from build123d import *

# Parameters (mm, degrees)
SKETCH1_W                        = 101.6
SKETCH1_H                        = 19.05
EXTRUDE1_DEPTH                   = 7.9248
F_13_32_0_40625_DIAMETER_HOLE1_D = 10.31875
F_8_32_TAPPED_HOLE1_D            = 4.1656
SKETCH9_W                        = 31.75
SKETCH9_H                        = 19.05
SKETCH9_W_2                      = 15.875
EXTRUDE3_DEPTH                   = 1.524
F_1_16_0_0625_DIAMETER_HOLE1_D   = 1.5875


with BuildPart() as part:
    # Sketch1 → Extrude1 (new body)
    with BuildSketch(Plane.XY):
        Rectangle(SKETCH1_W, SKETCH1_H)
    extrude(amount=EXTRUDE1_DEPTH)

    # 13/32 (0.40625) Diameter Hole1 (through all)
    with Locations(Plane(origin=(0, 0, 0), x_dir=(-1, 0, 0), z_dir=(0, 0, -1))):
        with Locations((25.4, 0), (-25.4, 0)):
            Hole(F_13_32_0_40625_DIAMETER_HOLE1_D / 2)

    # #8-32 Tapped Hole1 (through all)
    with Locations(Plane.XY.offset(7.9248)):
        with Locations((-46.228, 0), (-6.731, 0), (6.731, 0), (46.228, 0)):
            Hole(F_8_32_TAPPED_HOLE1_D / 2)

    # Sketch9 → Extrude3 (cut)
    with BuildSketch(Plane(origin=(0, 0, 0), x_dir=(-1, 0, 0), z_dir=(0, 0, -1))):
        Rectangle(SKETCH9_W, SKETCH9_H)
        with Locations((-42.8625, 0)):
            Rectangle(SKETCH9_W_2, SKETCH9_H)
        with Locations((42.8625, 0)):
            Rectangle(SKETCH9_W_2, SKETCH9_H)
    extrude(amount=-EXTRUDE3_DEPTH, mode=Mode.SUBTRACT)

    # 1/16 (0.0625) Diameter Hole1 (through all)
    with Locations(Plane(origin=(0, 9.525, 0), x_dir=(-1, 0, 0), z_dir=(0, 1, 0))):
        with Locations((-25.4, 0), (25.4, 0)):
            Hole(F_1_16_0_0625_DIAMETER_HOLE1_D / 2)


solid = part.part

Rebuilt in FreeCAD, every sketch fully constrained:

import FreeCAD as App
import Part
import Sketcher

V = App.Vector
Q = App.Units.Quantity


def add_polygon(sketch, points):
    """Adds a closed chain of lines whose ends are joined by coincident constraints."""
    first, n = sketch.GeometryCount, len(points)
    for a, b in zip(points, points[1:] + points[:1]):
        sketch.addGeometry(Part.LineSegment(App.Vector(*a, 0), App.Vector(*b, 0)), False)
    for i in range(n):
        sketch.addConstraint(Sketcher.Constraint("Coincident", first + i, 2, first + (i + 1) % n, 1))

doc = App.newDocument("Part")
body = doc.addObject("PartDesign::Body", "Body")

# Sketch on XY plane
sketch1 = body.newObject("Sketcher::SketchObject", "Sketch")
sketch1.AttachmentSupport = (doc.getObject("XY_Plane"), [""])
sketch1.MapMode = "FlatFace"
add_polygon(sketch1, [(-51, 10), (-51, -10), (51, -10), (51, 10)])  # lines 0-3
sketch1.addConstraint([
    Sketcher.Constraint("Vertical", 0),
    Sketcher.Constraint("Horizontal", 1),
    Sketcher.Constraint("Vertical", 2),
    Sketcher.Constraint("Horizontal", 3),
    Sketcher.Constraint("Symmetric", 0, 2, 2, 2, -1, 1),
    Sketcher.Constraint("DistanceX", 1, 1, 1, 2, Q("4 in")),
    Sketcher.Constraint("DistanceY", 0, 2, 0, 1, Q("0.75 in")),
])
pad1 = body.newObject("PartDesign::Pad", "Pad")
pad1.Profile = sketch1
pad1.Length = Q("0.312 in")

# Sketch on XY plane
sketch2 = body.newObject("Sketcher::SketchObject", "Sketch001")
sketch2.AttachmentSupport = (doc.getObject("XY_Plane"), [""])
sketch2.MapMode = "FlatFace"
sketch2.addGeometry([
    Part.Circle(V(-25, 0, 0), V(0, 0, 1), 5),
    Part.Circle(V(25, 0, 0), V(0, 0, 1), 5),
], False)
sketch2.addConstraint([
    Sketcher.Constraint("Equal", 0, 1),
    Sketcher.Constraint("Symmetric", 0, 3, 1, 3, -1, 1),
    Sketcher.Constraint("PointOnObject", 0, 3, -1),
    Sketcher.Constraint("Diameter", 0, Q("0.40625 in")),
    Sketcher.Constraint("DistanceX", 0, 3, -1, 1, Q("1 in")),
])
doc.recompute()
hole = body.newObject("PartDesign::Hole", "Hole")
hole.Profile = sketch2
hole.ThreadType = "None"
hole.Diameter = Q("0.40625 in")
hole.DepthType = "ThroughAll"
hole.Reversed = True

# Sketch on XY plane
sketch3 = body.newObject("Sketcher::SketchObject", "Sketch002")
sketch3.AttachmentSupport = (doc.getObject("XY_Plane"), [""])
sketch3.MapMode = "FlatFace"
sketch3.AttachmentOffset = App.Placement(V(0, 0, 0.312 * 25.4), App.Rotation())
sketch3.addGeometry([
    Part.Circle(V(-46.2, 0, 0), V(0, 0, 1), 2.1),
    Part.Circle(V(-6.7, 0, 0), V(0, 0, 1), 2.1),
    Part.Circle(V(6.7, 0, 0), V(0, 0, 1), 2.1),
    Part.Circle(V(46.2, 0, 0), V(0, 0, 1), 2.1),
], False)
sketch3.addConstraint([
    Sketcher.Constraint("Equal", 0, 1),
    Sketcher.Constraint("Equal", 1, 2),
    Sketcher.Constraint("Equal", 2, 3),
    Sketcher.Constraint("Symmetric", 1, 3, 2, 3, -1, 1),
    Sketcher.Constraint("Symmetric", 0, 3, 3, 3, -1, 1),
    Sketcher.Constraint("PointOnObject", 0, 3, -1),
    Sketcher.Constraint("PointOnObject", 1, 3, -1),
    Sketcher.Constraint("Diameter", 0, Q("0.164 in")),
    Sketcher.Constraint("DistanceX", 0, 3, -1, 1, Q("1.82 in")),
    Sketcher.Constraint("DistanceX", 1, 3, 2, 3, Q("0.53 in")),
])
doc.recompute()
hole2 = body.newObject("PartDesign::Hole", "Hole001")
hole2.Profile = sketch3
hole2.ThreadType = "None"
hole2.Diameter = Q("0.164 in")
hole2.DepthType = "ThroughAll"

# Sketch on XY plane
sketch4 = body.newObject("Sketcher::SketchObject", "Sketch003")
sketch4.AttachmentSupport = (doc.getObject("XY_Plane"), [""])
sketch4.MapMode = "FlatFace"
add_polygon(sketch4, [(16, 10), (16, -10), (-16, -10), (-16, 10)])  # lines 0-3
add_polygon(sketch4, [(51, 10), (51, -10), (35, -10), (35, 10)])  # lines 4-7
add_polygon(sketch4, [(-35, 10), (-35, -10), (-51, -10), (-51, 10)])  # lines 8-11
sketch4.addConstraint([
    Sketcher.Constraint("Vertical", 0),
    Sketcher.Constraint("Horizontal", 1),
    Sketcher.Constraint("Vertical", 2),
    Sketcher.Constraint("Horizontal", 3),
    Sketcher.Constraint("Vertical", 4),
    Sketcher.Constraint("Horizontal", 5),
    Sketcher.Constraint("Vertical", 6),
    Sketcher.Constraint("Horizontal", 7),
    Sketcher.Constraint("Vertical", 8),
    Sketcher.Constraint("Horizontal", 9),
    Sketcher.Constraint("Vertical", 10),
    Sketcher.Constraint("Horizontal", 11),
    Sketcher.Constraint("Symmetric", 0, 2, 2, 2, -1, 1),
    Sketcher.Constraint("Symmetric", 6, 2, 8, 2, -1, 1),
    Sketcher.Constraint("Symmetric", 4, 2, 10, 2, -1, 1),
    Sketcher.Constraint("Horizontal", 1, 2, 4, 2),
    Sketcher.Constraint("Horizontal", 3, 2, 6, 2),
    Sketcher.Constraint("DistanceX", -1, 1, 4, 2, Q("2 in")),
    Sketcher.Constraint("DistanceX", 1, 2, 5, 2, Q("2 in")),
    Sketcher.Constraint("DistanceX", 1, 2, 1, 1, Q("1.25 in")),
    Sketcher.Constraint("DistanceY", 0, 2, 0, 1, Q("0.75 in")),
])
pocket1 = body.newObject("PartDesign::Pocket", "Pocket")
pocket1.Profile = sketch4
pocket1.Length = Q("0.06 in")
pocket1.Reversed = True

# Sketch on XZ plane
sketch5 = body.newObject("Sketcher::SketchObject", "Sketch004")
sketch5.AttachmentSupport = (doc.getObject("XZ_Plane"), [""])
sketch5.MapMode = "FlatFace"
sketch5.AttachmentOffset = App.Placement(V(0, 0, -0.375 * 25.4), App.Rotation())
sketch5.addGeometry([
    Part.Circle(V(25.4, 0, 0), V(0, 0, 1), 0.8),
    Part.Circle(V(-25.4, 0, 0), V(0, 0, 1), 0.8),
], False)
sketch5.addConstraint([
    Sketcher.Constraint("Equal", 0, 1),
    Sketcher.Constraint("Symmetric", 0, 3, 1, 3, -1, 1),
    Sketcher.Constraint("PointOnObject", 0, 3, -1),
    Sketcher.Constraint("Diameter", 0, Q("0.0625 in")),
    Sketcher.Constraint("DistanceX", -1, 1, 0, 3, Q("1 in")),
])
doc.recompute()
hole3 = body.newObject("PartDesign::Hole", "Hole002")
hole3.Profile = sketch5
hole3.ThreadType = "None"
hole3.Diameter = Q("0.0625 in")
hole3.DepthType = "ThroughAll"
hole3.Reversed = True

doc.recompute()
